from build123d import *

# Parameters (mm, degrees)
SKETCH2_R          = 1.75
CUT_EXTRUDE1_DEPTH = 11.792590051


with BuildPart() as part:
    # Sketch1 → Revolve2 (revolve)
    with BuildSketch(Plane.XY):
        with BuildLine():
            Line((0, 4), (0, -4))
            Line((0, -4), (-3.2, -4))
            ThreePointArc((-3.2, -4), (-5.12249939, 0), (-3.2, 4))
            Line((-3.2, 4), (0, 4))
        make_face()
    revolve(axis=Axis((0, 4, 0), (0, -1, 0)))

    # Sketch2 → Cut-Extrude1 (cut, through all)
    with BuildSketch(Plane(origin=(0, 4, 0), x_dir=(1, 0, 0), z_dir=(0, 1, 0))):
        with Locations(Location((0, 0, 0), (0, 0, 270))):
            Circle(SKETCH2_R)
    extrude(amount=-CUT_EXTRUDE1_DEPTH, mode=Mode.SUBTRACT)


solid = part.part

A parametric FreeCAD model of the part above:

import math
import FreeCAD as App
import Part
import Sketcher
from FreeCAD import Vector
Q = App.Units.Quantity

doc = App.newDocument("Part")
body = doc.addObject("PartDesign::Body", "Body")

sketch1 = body.newObject("Sketcher::SketchObject", "Sketch")
sketch1.AttachmentSupport = (doc.getObject("XY_Plane"), [""])
sketch1.MapMode = "FlatFace"
sketch1.addGeometry([
    Part.LineSegment(Vector(0, -4, 0), Vector(0, 4, 0)),
    Part.LineSegment(Vector(0, 4, 0), Vector(-3.2, 4, 0)),
    Part.ArcOfCircle(Part.Circle(Vector(0, 0, 0), Vector(0, 0, 1), 5.1), math.radians(129), math.radians(231)),
    Part.LineSegment(Vector(-3.2, -4, 0), Vector(0, -4, 0)),
], False)
sketch1.addConstraint([
    Sketcher.Constraint("Coincident", 0, 2, 1, 1),
    Sketcher.Constraint("Coincident", 1, 2, 2, 1),
    Sketcher.Constraint("Coincident", 2, 2, 3, 1),
    Sketcher.Constraint("Coincident", 3, 2, 0, 1),
    Sketcher.Constraint("Vertical", 0),
    Sketcher.Constraint("Horizontal", 1),
    Sketcher.Constraint("Horizontal", 3),
    Sketcher.Constraint("Coincident", 2, 3, -1, 1),
    Sketcher.Constraint("Symmetric", 0, 2, 3, 2, -1, 1),
    Sketcher.Constraint("DistanceY", 0, 1, 0, 2, Q("8 mm")),
    Sketcher.Constraint("DistanceX", 1, 2, 1, 1, Q("3.2 mm")),
])
revolution = body.newObject("PartDesign::Revolution", "Revolution")
revolution.Profile = sketch1
revolution.ReferenceAxis = (sketch1, ["V_Axis"])
revolution.Angle = 360

sketch2 = body.newObject("Sketcher::SketchObject", "Sketch001")
sketch2.AttachmentSupport = (doc.getObject("XZ_Plane"), [""])
sketch2.MapMode = "FlatFace"
sketch2.AttachmentOffset = App.Placement(Vector(0, 0, -4), App.Rotation())
sketch2.addGeometry(Part.Circle(Vector(0, 0, 0), Vector(0, 0, 1), 1.8), False)
sketch2.addConstraint([
    Sketcher.Constraint("Coincident", 0, 3, -1, 1),
    Sketcher.Constraint("Diameter", 0, Q("3.5 mm")),
])
pocket1 = body.newObject("PartDesign::Pocket", "Pocket")
pocket1.Profile = sketch2
pocket1.Type = "ThroughAll"
pocket1.Reversed = True

doc.recompute()
